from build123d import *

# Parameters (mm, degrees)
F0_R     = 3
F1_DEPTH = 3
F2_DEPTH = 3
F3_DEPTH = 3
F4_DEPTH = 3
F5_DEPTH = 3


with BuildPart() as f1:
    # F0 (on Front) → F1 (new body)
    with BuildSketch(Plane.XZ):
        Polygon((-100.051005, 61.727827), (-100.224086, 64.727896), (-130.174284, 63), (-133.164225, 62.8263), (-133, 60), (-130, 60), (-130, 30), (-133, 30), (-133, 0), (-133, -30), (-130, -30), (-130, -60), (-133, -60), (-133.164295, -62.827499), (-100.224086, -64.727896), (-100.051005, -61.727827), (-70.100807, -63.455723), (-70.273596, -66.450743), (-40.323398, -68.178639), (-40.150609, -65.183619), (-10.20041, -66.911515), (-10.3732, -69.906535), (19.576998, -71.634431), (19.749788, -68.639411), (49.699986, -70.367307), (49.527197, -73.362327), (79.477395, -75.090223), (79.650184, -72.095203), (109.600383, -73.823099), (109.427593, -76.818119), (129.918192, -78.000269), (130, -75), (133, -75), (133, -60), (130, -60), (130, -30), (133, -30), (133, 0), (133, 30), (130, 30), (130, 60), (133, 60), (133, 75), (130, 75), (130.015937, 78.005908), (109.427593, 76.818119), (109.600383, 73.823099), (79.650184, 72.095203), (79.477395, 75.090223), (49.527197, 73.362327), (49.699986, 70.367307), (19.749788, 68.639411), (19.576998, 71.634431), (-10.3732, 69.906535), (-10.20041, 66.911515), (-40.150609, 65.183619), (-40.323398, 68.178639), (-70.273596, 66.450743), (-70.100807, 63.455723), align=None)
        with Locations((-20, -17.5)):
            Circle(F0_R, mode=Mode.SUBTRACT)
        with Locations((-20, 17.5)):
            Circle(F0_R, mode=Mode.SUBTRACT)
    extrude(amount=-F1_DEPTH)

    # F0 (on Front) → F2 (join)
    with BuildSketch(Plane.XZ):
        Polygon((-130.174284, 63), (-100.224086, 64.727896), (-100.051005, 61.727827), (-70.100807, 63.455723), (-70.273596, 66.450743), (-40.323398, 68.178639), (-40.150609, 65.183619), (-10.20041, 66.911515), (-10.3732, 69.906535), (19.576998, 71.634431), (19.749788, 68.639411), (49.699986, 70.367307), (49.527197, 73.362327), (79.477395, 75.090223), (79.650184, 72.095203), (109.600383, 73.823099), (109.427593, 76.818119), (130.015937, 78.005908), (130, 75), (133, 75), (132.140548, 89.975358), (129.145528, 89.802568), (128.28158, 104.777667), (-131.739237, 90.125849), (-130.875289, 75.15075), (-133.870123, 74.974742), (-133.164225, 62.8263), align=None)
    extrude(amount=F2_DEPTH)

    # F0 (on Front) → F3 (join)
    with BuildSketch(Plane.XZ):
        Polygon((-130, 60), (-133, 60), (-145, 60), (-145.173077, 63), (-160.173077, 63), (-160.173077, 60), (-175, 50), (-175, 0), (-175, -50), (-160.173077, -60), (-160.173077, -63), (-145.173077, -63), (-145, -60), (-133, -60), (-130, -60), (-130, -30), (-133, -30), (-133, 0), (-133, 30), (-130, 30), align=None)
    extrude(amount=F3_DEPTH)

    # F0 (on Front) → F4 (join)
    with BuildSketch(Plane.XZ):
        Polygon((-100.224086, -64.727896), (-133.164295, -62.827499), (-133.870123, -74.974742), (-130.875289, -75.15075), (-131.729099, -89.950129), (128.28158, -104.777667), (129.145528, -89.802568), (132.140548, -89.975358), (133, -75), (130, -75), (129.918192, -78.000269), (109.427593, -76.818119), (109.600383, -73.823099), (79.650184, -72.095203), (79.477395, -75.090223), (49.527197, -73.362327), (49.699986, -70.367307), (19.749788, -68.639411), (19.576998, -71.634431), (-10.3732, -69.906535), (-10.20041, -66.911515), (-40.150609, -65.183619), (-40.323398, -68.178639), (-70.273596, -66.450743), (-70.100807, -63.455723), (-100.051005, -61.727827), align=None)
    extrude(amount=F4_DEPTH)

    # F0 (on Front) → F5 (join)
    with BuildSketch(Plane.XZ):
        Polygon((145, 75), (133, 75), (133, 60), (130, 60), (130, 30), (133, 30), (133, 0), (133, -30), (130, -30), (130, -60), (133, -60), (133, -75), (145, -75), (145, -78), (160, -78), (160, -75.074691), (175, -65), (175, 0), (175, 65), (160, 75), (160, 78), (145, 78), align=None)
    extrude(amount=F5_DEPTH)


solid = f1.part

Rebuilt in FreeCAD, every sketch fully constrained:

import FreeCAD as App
import Part
import Sketcher
from FreeCAD import Vector


def add_polygon(sketch, points):
    """Adds a closed chain of lines whose ends are joined by coincident constraints."""
    first, n = sketch.GeometryCount, len(points)
    for a, b in zip(points, points[1:] + points[:1]):
        sketch.addGeometry(Part.LineSegment(App.Vector(*a, 0), App.Vector(*b, 0)), False)
    for i in range(n):
        sketch.addConstraint(Sketcher.Constraint("Coincident", first + i, 2, first + (i + 1) % n, 1))

doc = App.newDocument("Part")
body = doc.addObject("PartDesign::Body", "Body")
body.AllowCompound = True

sketch1 = body.newObject("Sketcher::SketchObject", "Sketch")
sketch1.AttachmentSupport = (doc.getObject("XZ_Plane"), [""])
sketch1.MapMode = "FlatFace"
add_polygon(sketch1, [(-100.051005, 61.727827), (-100.224086, 64.727896), (-130.174284, 63), (-133.164225, 62.8263), (-133, 60), (-130, 60), (-130, 30), (-133, 30), (-133, -30), (-130, -30), (-130, -60), (-133, -60), (-133.164295, -62.827499), (-100.224086, -64.727896), (-100.051005, -61.727827), (-70.100807, -63.455723), (-70.273596, -66.450743), (-40.323398, -68.178639), (-40.150609, -65.183619), (-10.20041, -66.911515), (-10.3732, -69.906535), (19.576998, -71.634431), (19.749788, -68.639411), (49.699986, -70.367307), (49.527197, -73.362327), (79.477395, -75.090223), (79.650184, -72.095203), (109.600383, -73.823099), (109.427593, -76.818119), (129.918192, -78.000269), (130, -75), (133, -75), (133, -60), (130, -60), (130, -30), (133, -30), (133, 30), (130, 30), (130, 60), (133, 60), (133, 75), (130, 75), (130.015937, 78.005908), (109.427593, 76.818119), (109.600383, 73.823099), (79.650184, 72.095203), (79.477395, 75.090223), (49.527197, 73.362327), (49.699986, 70.367307), (19.749788, 68.639411), (19.576998, 71.634431), (-10.3732, 69.906535), (-10.20041, 66.911515), (-40.150609, 65.183619), (-40.323398, 68.178639), (-70.273596, 66.450743), (-70.100807, 63.455723)])
sketch1.addGeometry(Part.Circle(Vector(-20, -17.5, 0), Vector(0, 0, 1), 3), False)
sketch1.addGeometry(Part.Circle(Vector(-20, 17.5, 0), Vector(0, 0, 1), 3), False)
sketch1.addConstraint([
    Sketcher.Constraint("Horizontal", 4),
    Sketcher.Constraint("Vertical", 5),
    Sketcher.Constraint("Horizontal", 6),
    Sketcher.Constraint("Vertical", 7),
    Sketcher.Constraint("Horizontal", 8),
    Sketcher.Constraint("Vertical", 9),
    Sketcher.Constraint("Horizontal", 10),
    Sketcher.Constraint("Horizontal", 30),
    Sketcher.Constraint("Vertical", 31),
    Sketcher.Constraint("Horizontal", 32),
    Sketcher.Constraint("Vertical", 33),
    Sketcher.Constraint("Horizontal", 34),
    Sketcher.Constraint("Vertical", 35),
    Sketcher.Constraint("Horizontal", 36),
    Sketcher.Constraint("Vertical", 37),
    Sketcher.Constraint("Horizontal", 38),
    Sketcher.Constraint("Vertical", 39),
    Sketcher.Constraint("Horizontal", 40),
    Sketcher.Constraint("Equal", 57, 58),
    Sketcher.Constraint("Symmetric", 3, 2, 31, 2, -1, 1),
    Sketcher.Constraint("Symmetric", 5, 2, 33, 2, -1, 1),
    Sketcher.Constraint("Symmetric", 7, 2, 35, 2, -1, 1),
    Sketcher.Constraint("Symmetric", 9, 2, 37, 2, -1, 1),
    Sketcher.Constraint("Symmetric", 10, 2, 31, 2, -2),
    Sketcher.Constraint("Symmetric", 8, 2, 33, 2, -2),
    Sketcher.Constraint("Symmetric", 57, 3, 58, 3, -1),
    Sketcher.Constraint("Symmetric", 0, 2, 12, 2, -1),
    Sketcher.Constraint("Symmetric", 30, 2, 39, 2, -1),
    Sketcher.Constraint("Symmetric", 27, 2, 42, 2, -1),
    Sketcher.Constraint("Symmetric", 26, 2, 43, 2, -1),
    Sketcher.Constraint("Symmetric", 25, 2, 44, 2, -1),
    Sketcher.Constraint("Symmetric", 24, 2, 45, 2, -1),
    Sketcher.Constraint("Symmetric", 23, 2, 46, 2, -1),
    Sketcher.Constraint("Symmetric", 22, 2, 47, 2, -1),
    Sketcher.Constraint("Symmetric", 21, 2, 48, 2, -1),
    Sketcher.Constraint("Symmetric", 20, 2, 49, 2, -1),
    Sketcher.Constraint("Symmetric", 19, 2, 50, 2, -1),
    Sketcher.Constraint("Symmetric", 18, 2, 51, 2, -1),
    Sketcher.Constraint("Symmetric", 17, 2, 52, 2, -1),
    Sketcher.Constraint("Symmetric", 16, 2, 53, 2, -1),
    Sketcher.Constraint("Symmetric", 15, 2, 54, 2, -1),
    Sketcher.Constraint("Symmetric", 14, 2, 55, 2, -1),
    Sketcher.Constraint("Symmetric", 13, 2, 56, 2, -1),
    Sketcher.Constraint("Perpendicular", 0, 1),
    Sketcher.Constraint("Perpendicular", 12, 13),
    Sketcher.Constraint("Perpendicular", 13, 14),
    Sketcher.Constraint("Perpendicular", 14, 15),
    Sketcher.Constraint("Perpendicular", 15, 16),
    Sketcher.Constraint("Perpendicular", 16, 17),
    Sketcher.Constraint("Perpendicular", 17, 18),
    Sketcher.Constraint("Perpendicular", 18, 19),
    Sketcher.Constraint("Perpendicular", 19, 20),
    Sketcher.Constraint("Perpendicular", 20, 21),
    Sketcher.Constraint("Perpendicular", 21, 22),
    Sketcher.Constraint("Perpendicular", 22, 23),
    Sketcher.Constraint("Perpendicular", 23, 24),
    Sketcher.Constraint("Perpendicular", 24, 25),
    Sketcher.Constraint("Perpendicular", 25, 26),
    Sketcher.Constraint("Perpendicular", 26, 27),
    Sketcher.Constraint("Perpendicular", 27, 28),
    Sketcher.Constraint("Parallel", 1, 42),
    Sketcher.Constraint("Vertical", 3, 2, 6, 2),
    Sketcher.Constraint("Vertical", 29, 2, 32, 2),
    Sketcher.Constraint("Vertical", 37, 2, 40, 2),
    Sketcher.Constraint("Equal", 1, 14),
    Sketcher.Constraint("Equal", 14, 16),
    Sketcher.Constraint("Equal", 15, 17),
    Sketcher.Constraint("Equal", 16, 18),
    Sketcher.Constraint("Equal", 17, 19),
    Sketcher.Constraint("Equal", 18, 20),
    Sketcher.Constraint("Equal", 19, 21),
    Sketcher.Constraint("Equal", 20, 22),
    Sketcher.Constraint("Equal", 21, 23),
    Sketcher.Constraint("Equal", 22, 24),
    Sketcher.Constraint("Equal", 23, 25),
    Sketcher.Constraint("Equal", 24, 26),
    Sketcher.Constraint("Equal", 25, 27),
    Sketcher.Constraint("Diameter", 57, 6.0),
    Sketcher.Constraint("DistanceX", 4, 1, 4, 2, 3.0),
    Sketcher.Constraint("DistanceY", 5, 2, 5, 1, 30.0),
    Sketcher.Constraint("DistanceY", 7, 2, 7, 1, 60.0),
    Sketcher.Constraint("DistanceY", 31, 1, 31, 2, 15.0),
    Sketcher.Constraint("Distance", 1, 30.0),
    Sketcher.Constraint("Distance", 15, 3.0),
    Sketcher.Constraint("DistanceX", 57, 3, -1, 1, 20.0),
    Sketcher.Constraint("DistanceY", -1, 1, 1, 2, 63.0),
    Sketcher.Constraint("DistanceX", 3, 2, -1, 1, 133.0),
    Sketcher.Constraint("DistanceY", 57, 3, 58, 3, 35.0),
    Sketcher.Constraint("DistanceX", 57, 3, 20, 2, 39.576998),
    Sketcher.Constraint("DistanceY", -1, 1, 2, 2, 62.8263),
    Sketcher.Constraint("DistanceY", 11, 2, -1, 1, 62.827499),
    Sketcher.Constraint("DistanceX", 19, 2, -1, 1, 10.3732),
    Sketcher.Constraint("DistanceY", 26, 2, -1, 1, 73.823099),
    Sketcher.Constraint("DistanceX", 27, 2, 28, 2, 20.490599),
    Sketcher.Constraint("Distance", 41, 3.00595),
    Sketcher.Constraint("DistanceX", 2, 2, 1, 2, 2.989941),
])
pad1 = body.newObject("PartDesign::Pad", "Pad")
pad1.Profile = sketch1
pad1.Length = 3
pad1.Reversed = True

sketch2 = body.newObject("Sketcher::SketchObject", "Sketch001")
sketch2.AttachmentSupport = (doc.getObject("XZ_Plane"), [""])
sketch2.MapMode = "FlatFace"
add_polygon(sketch2, [(-130.2, 63), (-100.2, 64.7), (-100.1, 61.7), (-70.1, 63.5), (-70.3, 66.5), (-40.3, 68.2), (-40.2, 65.2), (-10.2, 66.9), (-10.4, 69.9), (19.6, 71.6), (19.7, 68.6), (49.7, 70.4), (49.5, 73.4), (79.5, 75.1), (79.7, 72.1), (109.6, 73.8), (109.4, 76.8), (130, 78), (130, 75), (133, 75), (132.1, 90), (129.1, 89.8), (128.3, 104.8), (-131.7, 90.1), (-130.9, 75.2), (-133.9, 75), (-133.2, 62.8)])
sketch2.addConstraint([
    Sketcher.Constraint("Horizontal", 18),
    Sketcher.Constraint("Perpendicular", 0, 1),
    Sketcher.Constraint("Perpendicular", 1, 2),
    Sketcher.Constraint("Perpendicular", 2, 3),
    Sketcher.Constraint("Perpendicular", 3, 4),
    Sketcher.Constraint("Perpendicular", 4, 5),
    Sketcher.Constraint("Perpendicular", 5, 6),
    Sketcher.Constraint("Perpendicular", 6, 7),
    Sketcher.Constraint("Perpendicular", 7, 8),
    Sketcher.Constraint("Perpendicular", 8, 9),
    Sketcher.Constraint("Perpendicular", 9, 10),
    Sketcher.Constraint("Perpendicular", 10, 11),
    Sketcher.Constraint("Perpendicular", 11, 12),
    Sketcher.Constraint("Perpendicular", 12, 13),
    Sketcher.Constraint("Perpendicular", 13, 14),
    Sketcher.Constraint("Perpendicular", 14, 15),
    Sketcher.Constraint("Perpendicular", 15, 16),
    Sketcher.Constraint("Parallel", 16, 20),
    Sketcher.Constraint("Perpendicular", 20, 21),
    Sketcher.Constraint("Parallel", 21, 23),
    Sketcher.Constraint("Equal", 0, 2),
    Sketcher.Constraint("Equal", 2, 4),
    Sketcher.Constraint("Equal", 3, 5),
    Sketcher.Constraint("Equal", 4, 6),
    Sketcher.Constraint("Equal", 5, 7),
    Sketcher.Constraint("Equal", 6, 8),
    Sketcher.Constraint("Equal", 7, 9),
    Sketcher.Constraint("Equal", 8, 10),
    Sketcher.Constraint("Equal", 9, 11),
    Sketcher.Constraint("Equal", 10, 12),
    Sketcher.Constraint("Equal", 11, 13),
    Sketcher.Constraint("Equal", 12, 14),
    Sketcher.Constraint("Equal", 13, 15),
    Sketcher.Constraint("Equal", 15, 20),
    Sketcher.Constraint("Equal", 19, 21),
    Sketcher.Constraint("Equal", 21, 23),
    Sketcher.Constraint("Equal", 20, 24),
    Sketcher.Constraint("DistanceX", 18, 1, 18, 2, 3.0),
    Sketcher.Constraint("Distance", 0, 30.0),
    Sketcher.Constraint("Distance", 3, 3.0),
    Sketcher.Constraint("Distance", 19, 15.0),
    Sketcher.Constraint("DistanceX", -1, 1, 17, 2, 130.0),
    Sketcher.Constraint("DistanceY", -1, 1, 17, 2, 75.0),
    Sketcher.Constraint("DistanceY", -1, 1, 26, 2, 63.0),
    Sketcher.Constraint("DistanceY", 3, 2, 24, 2, 8.523999),
    Sketcher.Constraint("DistanceX", 7, 2, -1, 1, 10.3732),
    Sketcher.Constraint("DistanceY", -1, 1, 14, 2, 73.823099),
    Sketcher.Constraint("DistanceY", -1, 1, 25, 2, 62.8263),
    Sketcher.Constraint("DistanceX", 24, 2, 25, 2, 0.705898),
    Sketcher.Constraint("Distance", 16, 20.622579),
    Sketcher.Constraint("Distance", 17, 3.00595),
    Sketcher.Constraint("DistanceX", -1, 1, 19, 2, 132.140548),
    Sketcher.Constraint("DistanceY", -1, 1, 22, 2, 90.125849),
    Sketcher.Constraint("DistanceX", 23, 2, -1, 1, 130.875289),
])
pad2 = body.newObject("PartDesign::Pad", "Pad001")
pad2.Profile = sketch2
pad2.Length = 3

sketch3 = body.newObject("Sketcher::SketchObject", "Sketch002")
sketch3.AttachmentSupport = (doc.getObject("XZ_Plane"), [""])
sketch3.MapMode = "FlatFace"
add_polygon(sketch3, [(-130, 60), (-145, 60), (-145.2, 63), (-160.2, 63), (-160.2, 60), (-175, 50), (-175, -50), (-160.2, -60), (-160.2, -63), (-145.2, -63), (-145, -60), (-130, -60), (-130, -30), (-133, -30), (-133, 30), (-130, 30)])
sketch3.addConstraint([
    Sketcher.Constraint("Horizontal", 0),
    Sketcher.Constraint("Horizontal", 2),
    Sketcher.Constraint("Vertical", 3),
    Sketcher.Constraint("Vertical", 5),
    Sketcher.Constraint("Vertical", 7),
    Sketcher.Constraint("Horizontal", 8),
    Sketcher.Constraint("Horizontal", 10),
    Sketcher.Constraint("Vertical", 11),
    Sketcher.Constraint("Horizontal", 12),
    Sketcher.Constraint("Vertical", 13),
    Sketcher.Constraint("Horizontal", 14),
    Sketcher.Constraint("Vertical", 15),
    Sketcher.Constraint("Symmetric", 3, 2, 6, 2, -1),
    Sketcher.Constraint("Symmetric", 1, 2, 8, 2, -1),
    Sketcher.Constraint("Symmetric", 0, 2, 9, 2, -1),
    Sketcher.Constraint("Symmetric", 11, 2, 14, 2, -1),
    Sketcher.Constraint("Horizontal", 0, 2, 3, 2),
    Sketcher.Constraint("Equal", 0, 2),
    Sketcher.Constraint("Equal", 14, 3),
    Sketcher.Constraint("Equal", 4, 6),
    Sketcher.Constraint("DistanceX", 0, 2, 0, 1, 15.0),
    Sketcher.Constraint("DistanceX", 12, 2, 12, 1, 3.0),
    Sketcher.Constraint("DistanceY", 5, 2, 5, 1, 100.0),
    Sketcher.Constraint("DistanceY", 11, 1, 11, 2, 30.0),
    Sketcher.Constraint("DistanceY", 13, 1, 13, 2, 60.0),
    Sketcher.Constraint("DistanceX", 0, 2, -1, 1, 145.0),
    Sketcher.Constraint("DistanceX", 4, 2, -1, 1, 175.0),
    Sketcher.Constraint("Distance", 1, 3.004988),
])
pad3 = body.newObject("PartDesign::Pad", "Pad002")
pad3.Profile = sketch3
pad3.Length = 3

sketch4 = body.newObject("Sketcher::SketchObject", "Sketch003")
sketch4.AttachmentSupport = (doc.getObject("XZ_Plane"), [""])
sketch4.MapMode = "FlatFace"
add_polygon(sketch4, [(-100.2, -64.7), (-133.2, -62.8), (-133.9, -75), (-130.9, -75.2), (-131.7, -90), (128.3, -104.8), (129.1, -89.8), (132.1, -90), (133, -75), (130, -75), (129.9, -78), (109.4, -76.8), (109.6, -73.8), (79.7, -72.1), (79.5, -75.1), (49.5, -73.4), (49.7, -70.4), (19.7, -68.6), (19.6, -71.6), (-10.4, -69.9), (-10.2, -66.9), (-40.2, -65.2), (-40.3, -68.2), (-70.3, -66.5), (-70.1, -63.5), (-100.1, -61.7)])
sketch4.addConstraint([
    Sketcher.Constraint("Horizontal", 8),
    Sketcher.Constraint("Perpendicular", 0, 3),
    Sketcher.Constraint("Parallel", 3, 5),
    Sketcher.Constraint("Perpendicular", 5, 6),
    Sketcher.Constraint("Parallel", 6, 10),
    Sketcher.Constraint("Perpendicular", 10, 11),
    Sketcher.Constraint("Perpendicular", 11, 12),
    Sketcher.Constraint("Perpendicular", 12, 13),
    Sketcher.Constraint("Perpendicular", 13, 14),
    Sketcher.Constraint("Perpendicular", 14, 15),
    Sketcher.Constraint("Perpendicular", 15, 16),
    Sketcher.Constraint("Perpendicular", 16, 17),
    Sketcher.Constraint("Perpendicular", 17, 18),
    Sketcher.Constraint("Perpendicular", 18, 19),
    Sketcher.Constraint("Perpendicular", 19, 20),
    Sketcher.Constraint("Perpendicular", 20, 21),
    Sketcher.Constraint("Perpendicular", 21, 22),
    Sketcher.Constraint("Perpendicular", 22, 23),
    Sketcher.Constraint("Perpendicular", 23, 24),
    Sketcher.Constraint("Perpendicular", 24, 25),
    Sketcher.Constraint("Equal", 2, 6),
    Sketcher.Constraint("Equal", 5, 7),
    Sketcher.Constraint("Equal", 6, 11),
    Sketcher.Constraint("Equal", 11, 13),
    Sketcher.Constraint("Equal", 12, 14),
    Sketcher.Constraint("Equal", 13, 15),
    Sketcher.Constraint("Equal", 14, 16),
    Sketcher.Constraint("Equal", 15, 17),
    Sketcher.Constraint("Equal", 16, 18),
    Sketcher.Constraint("Equal", 17, 19),
    Sketcher.Constraint("Equal", 18, 20),
    Sketcher.Constraint("Equal", 19, 21),
    Sketcher.Constraint("Equal", 20, 22),
    Sketcher.Constraint("Equal", 21, 23),
    Sketcher.Constraint("Equal", 22, 24),
    Sketcher.Constraint("DistanceX", 8, 2, 8, 1, 3.0),
    Sketcher.Constraint("Distance", 2, 3.000002),
    Sketcher.Constraint("Distance", 5, 15.0),
    Sketcher.Constraint("Distance", 12, 30.000001),
    Sketcher.Constraint("DistanceX", -1, 1, 7, 2, 133.0),
    Sketcher.Constraint("DistanceY", 7, 2, -1, 1, 75.0),
    Sketcher.Constraint("DistanceY", 0, 2, -1, 1, 62.827499),
    Sketcher.Constraint("DistanceX", 3, 2, -1, 1, 131.729099),
    Sketcher.Constraint("DistanceY", 11, 2, -1, 1, 73.823099),
    Sketcher.Constraint("DistanceX", 18, 2, -1, 1, 10.3732),
    Sketcher.Constraint("DistanceY", 5, 2, 9, 2, 11.802299),
    Sketcher.Constraint("DistanceX", 10, 2, 9, 2, 20.490599),
    Sketcher.Constraint("Distance", 4, 260.433118),
    Sketcher.Constraint("DistanceX", 2, 2, -1, 1, 130.875289),
    Sketcher.Constraint("DistanceY", 2, 2, -1, 1, 75.15075),
    Sketcher.Constraint("DistanceX", 1, 2, 5, 2, 263.015651),
    Sketcher.Constraint("DistanceX", 0, 2, 24, 2, 33.11329),
])
pad4 = body.newObject("PartDesign::Pad", "Pad003")
pad4.Profile = sketch4
pad4.Length = 3

sketch5 = body.newObject("Sketcher::SketchObject", "Sketch004")
sketch5.AttachmentSupport = (doc.getObject("XZ_Plane"), [""])
sketch5.MapMode = "FlatFace"
add_polygon(sketch5, [(145, 75), (133, 75), (133, 60), (130, 60), (130, 30), (133, 30), (133, -30), (130, -30), (130, -60), (133, -60), (133, -75), (145, -75), (145, -78), (160, -78), (160, -75.1), (175, -65), (175, 65), (160, 75), (160, 78), (145, 78)])
sketch5.addConstraint([
    Sketcher.Constraint("Horizontal", 0),
    Sketcher.Constraint("Vertical", 1),
    Sketcher.Constraint("Horizontal", 2),
    Sketcher.Constraint("Vertical", 3),
    Sketcher.Constraint("Horizontal", 4),
    Sketcher.Constraint("Vertical", 5),
    Sketcher.Constraint("Horizontal", 6),
    Sketcher.Constraint("Vertical", 7),
    Sketcher.Constraint("Horizontal", 8),
    Sketcher.Constraint("Vertical", 9),
    Sketcher.Constraint("Horizontal", 10),
    Sketcher.Constraint("Vertical", 11),
    Sketcher.Constraint("Horizontal", 12),
    Sketcher.Constraint("Vertical", 13),
    Sketcher.Constraint("Vertical", 15),
    Sketcher.Constraint("Vertical", 17),
    Sketcher.Constraint("Horizontal", 18),
    Sketcher.Constraint("Vertical", 19),
    Sketcher.Constraint("Symmetric", 3, 2, 6, 2, -1),
    Sketcher.Constraint("Symmetric", 1, 2, 8, 2, -1),
    Sketcher.Constraint("Symmetric", 12, 2, 17, 2, -1),
    Sketcher.Constraint("Symmetric", 10, 2, 19, 2, -1),
    Sketcher.Constraint("Horizontal", 0, 2, 16, 2),
    Sketcher.Constraint("Vertical", 1, 2, 4, 2),
    Sketcher.Constraint("Equal", 18, 1),
    Sketcher.Constraint("Equal", 8, 11),
    Sketcher.Constraint("DistanceX", 0, 2, 0, 1, 12.0),
    Sketcher.Constraint("DistanceX", 2, 2, 2, 1, 3.0),
    Sketcher.Constraint("DistanceX", 12, 1, 12, 2, 15.0),
    Sketcher.Constraint("DistanceY", 3, 2, 3, 1, 30.0),
    Sketcher.Constraint("DistanceY", 5, 2, 5, 1, 60.0),
    Sketcher.Constraint("DistanceY", 15, 1, 15, 2, 130.0),
    Sketcher.Constraint("DistanceX", -1, 1, 0, 2, 133.0),
    Sketcher.Constraint("DistanceX", -1, 1, 14, 2, 175.0),
    Sketcher.Constraint("DistanceY", 14, 2, -1, 1, 65.0),
    Sketcher.Constraint("DistanceY", 13, 1, 13, 2, 2.925309),
])
pad5 = body.newObject("PartDesign::Pad", "Pad004")
pad5.Profile = sketch5
pad5.Length = 3

doc.recompute()
